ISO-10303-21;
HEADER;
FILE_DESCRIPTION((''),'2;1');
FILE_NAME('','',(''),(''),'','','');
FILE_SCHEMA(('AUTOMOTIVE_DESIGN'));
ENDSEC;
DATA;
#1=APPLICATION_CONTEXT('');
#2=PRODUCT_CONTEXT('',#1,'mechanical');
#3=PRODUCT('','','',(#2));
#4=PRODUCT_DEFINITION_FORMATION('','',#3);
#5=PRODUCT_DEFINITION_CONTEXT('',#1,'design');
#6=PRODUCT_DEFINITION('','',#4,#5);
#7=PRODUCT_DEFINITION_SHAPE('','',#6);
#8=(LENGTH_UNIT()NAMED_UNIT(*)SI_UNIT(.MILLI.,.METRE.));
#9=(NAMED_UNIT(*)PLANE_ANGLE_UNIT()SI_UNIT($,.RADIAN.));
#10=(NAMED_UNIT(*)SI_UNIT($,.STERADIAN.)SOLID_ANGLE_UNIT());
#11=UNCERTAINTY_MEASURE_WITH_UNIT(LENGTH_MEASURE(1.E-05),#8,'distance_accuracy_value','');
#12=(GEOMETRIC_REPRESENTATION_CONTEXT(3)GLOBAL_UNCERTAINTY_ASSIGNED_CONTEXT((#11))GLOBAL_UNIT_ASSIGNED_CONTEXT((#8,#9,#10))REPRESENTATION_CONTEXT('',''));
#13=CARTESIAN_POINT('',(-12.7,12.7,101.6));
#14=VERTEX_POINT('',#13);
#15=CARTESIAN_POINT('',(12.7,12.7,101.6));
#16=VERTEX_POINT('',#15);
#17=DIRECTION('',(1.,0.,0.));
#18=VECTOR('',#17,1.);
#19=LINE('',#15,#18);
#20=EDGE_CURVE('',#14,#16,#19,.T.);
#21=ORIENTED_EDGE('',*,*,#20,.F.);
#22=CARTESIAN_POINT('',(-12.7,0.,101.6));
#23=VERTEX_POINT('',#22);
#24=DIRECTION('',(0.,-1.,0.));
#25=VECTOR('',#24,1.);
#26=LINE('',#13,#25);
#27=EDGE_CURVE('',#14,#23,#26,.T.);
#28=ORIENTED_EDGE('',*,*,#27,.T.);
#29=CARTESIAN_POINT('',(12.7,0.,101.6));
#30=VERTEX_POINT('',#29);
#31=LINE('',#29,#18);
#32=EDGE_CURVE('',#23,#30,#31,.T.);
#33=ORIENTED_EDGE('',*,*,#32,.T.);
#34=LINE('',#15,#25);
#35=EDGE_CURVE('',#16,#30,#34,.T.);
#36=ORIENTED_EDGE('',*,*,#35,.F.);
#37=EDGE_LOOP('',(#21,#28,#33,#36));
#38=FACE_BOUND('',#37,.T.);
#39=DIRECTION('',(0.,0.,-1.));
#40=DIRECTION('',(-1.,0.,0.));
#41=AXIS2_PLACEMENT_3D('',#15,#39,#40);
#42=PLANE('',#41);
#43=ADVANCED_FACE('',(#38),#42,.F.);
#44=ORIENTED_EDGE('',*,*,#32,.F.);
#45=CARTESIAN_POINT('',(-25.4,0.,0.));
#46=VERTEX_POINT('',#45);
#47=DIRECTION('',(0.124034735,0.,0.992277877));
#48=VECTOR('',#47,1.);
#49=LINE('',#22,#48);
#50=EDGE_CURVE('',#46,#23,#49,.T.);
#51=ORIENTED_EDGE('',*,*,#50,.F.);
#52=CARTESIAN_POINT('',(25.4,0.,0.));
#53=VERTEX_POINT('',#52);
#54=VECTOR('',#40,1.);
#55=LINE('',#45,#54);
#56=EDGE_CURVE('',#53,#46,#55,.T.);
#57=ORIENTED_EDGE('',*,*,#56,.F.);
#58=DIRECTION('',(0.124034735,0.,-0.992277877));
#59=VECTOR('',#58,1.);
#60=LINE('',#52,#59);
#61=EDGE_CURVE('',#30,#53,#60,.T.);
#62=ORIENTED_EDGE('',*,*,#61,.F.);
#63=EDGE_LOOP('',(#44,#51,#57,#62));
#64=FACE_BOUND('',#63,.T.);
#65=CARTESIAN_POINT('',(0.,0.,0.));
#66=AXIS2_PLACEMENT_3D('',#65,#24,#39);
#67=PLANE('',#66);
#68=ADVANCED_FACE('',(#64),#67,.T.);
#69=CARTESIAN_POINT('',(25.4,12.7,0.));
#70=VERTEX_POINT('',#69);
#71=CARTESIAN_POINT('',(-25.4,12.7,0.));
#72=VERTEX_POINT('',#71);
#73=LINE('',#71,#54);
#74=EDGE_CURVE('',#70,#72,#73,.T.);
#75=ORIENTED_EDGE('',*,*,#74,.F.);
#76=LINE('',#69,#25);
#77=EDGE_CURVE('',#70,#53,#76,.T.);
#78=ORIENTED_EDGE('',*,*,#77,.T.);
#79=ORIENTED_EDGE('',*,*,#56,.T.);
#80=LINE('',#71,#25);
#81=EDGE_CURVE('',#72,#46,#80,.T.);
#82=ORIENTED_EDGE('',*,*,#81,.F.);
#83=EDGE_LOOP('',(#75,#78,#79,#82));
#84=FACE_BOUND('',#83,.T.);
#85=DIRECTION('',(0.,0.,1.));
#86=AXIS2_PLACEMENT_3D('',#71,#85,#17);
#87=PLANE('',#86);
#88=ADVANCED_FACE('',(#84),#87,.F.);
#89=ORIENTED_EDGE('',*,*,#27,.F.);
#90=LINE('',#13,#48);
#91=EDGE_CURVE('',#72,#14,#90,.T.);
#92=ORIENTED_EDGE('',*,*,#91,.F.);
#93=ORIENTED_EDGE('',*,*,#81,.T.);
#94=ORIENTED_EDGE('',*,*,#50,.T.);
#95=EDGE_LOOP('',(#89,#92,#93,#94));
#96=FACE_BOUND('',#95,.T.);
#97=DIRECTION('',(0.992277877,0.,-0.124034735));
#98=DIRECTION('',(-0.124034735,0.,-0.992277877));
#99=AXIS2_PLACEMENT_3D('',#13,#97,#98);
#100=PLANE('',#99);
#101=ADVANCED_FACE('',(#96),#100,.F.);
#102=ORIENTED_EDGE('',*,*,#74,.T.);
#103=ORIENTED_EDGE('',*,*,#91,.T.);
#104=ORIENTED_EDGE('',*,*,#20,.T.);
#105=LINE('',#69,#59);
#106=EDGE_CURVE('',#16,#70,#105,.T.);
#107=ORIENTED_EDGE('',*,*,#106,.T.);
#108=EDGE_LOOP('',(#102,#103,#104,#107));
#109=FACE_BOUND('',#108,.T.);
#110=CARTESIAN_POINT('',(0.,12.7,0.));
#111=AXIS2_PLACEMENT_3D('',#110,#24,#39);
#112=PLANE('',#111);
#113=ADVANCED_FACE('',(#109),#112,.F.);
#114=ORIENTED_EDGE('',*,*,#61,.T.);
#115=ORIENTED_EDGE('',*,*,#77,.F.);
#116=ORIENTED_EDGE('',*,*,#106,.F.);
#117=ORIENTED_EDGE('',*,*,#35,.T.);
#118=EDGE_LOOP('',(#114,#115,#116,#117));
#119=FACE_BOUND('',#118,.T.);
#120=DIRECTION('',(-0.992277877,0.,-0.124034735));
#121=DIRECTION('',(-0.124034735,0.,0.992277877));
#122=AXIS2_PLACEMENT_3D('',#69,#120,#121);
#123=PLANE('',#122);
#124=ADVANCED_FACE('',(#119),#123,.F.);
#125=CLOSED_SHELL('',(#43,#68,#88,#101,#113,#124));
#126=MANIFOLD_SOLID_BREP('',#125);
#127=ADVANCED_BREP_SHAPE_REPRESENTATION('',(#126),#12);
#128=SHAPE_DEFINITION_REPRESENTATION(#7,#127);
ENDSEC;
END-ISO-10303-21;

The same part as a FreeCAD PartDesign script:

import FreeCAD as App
import Part
import Sketcher

V = App.Vector
Q = App.Units.Quantity

doc = App.newDocument("Part")
body = doc.addObject("PartDesign::Body", "Body")

sketch1 = doc.addObject("Sketcher::SketchObject", "Sketch")
body.addObject(sketch1)
sketch1.AttachmentSupport = (doc.XZ_Plane, [""])
sketch1.MapMode = "FlatFace"
sketch1.addGeometry(Part.LineSegment(V(25.4, 0, 0), V(-25.4, 0, 0)), False)
sketch1.addGeometry(Part.LineSegment(V(-25.4, 0, 0), V(-12.7, 101.6, 0)), False)
sketch1.addGeometry(Part.LineSegment(V(-12.7, 101.6, 0), V(12.7, 101.6, 0)), False)
sketch1.addGeometry(Part.LineSegment(V(12.7, 101.6, 0), V(25.4, 0, 0)), False)
sketch1.addConstraint(Sketcher.Constraint("Coincident", 0, 2, 1, 1))
sketch1.addConstraint(Sketcher.Constraint("Coincident", 1, 2, 2, 1))
sketch1.addConstraint(Sketcher.Constraint("Coincident", 2, 2, 3, 1))
sketch1.addConstraint(Sketcher.Constraint("Coincident", 3, 2, 0, 1))
sketch1.addConstraint(Sketcher.Constraint("Horizontal", 0))
sketch1.addConstraint(Sketcher.Constraint("Horizontal", 2))
sketch1.addConstraint(Sketcher.Constraint("Symmetric", 0, 2, 3, 2, -1, 1))
sketch1.addConstraint(Sketcher.Constraint("Equal", 1, 3))
sketch1.addConstraint(Sketcher.Constraint("DistanceX", 0, 2, 0, 1, Q("2 in")))
sketch1.addConstraint(Sketcher.Constraint("DistanceX", 2, 1, 2, 2, Q("1 in")))
sketch1.addConstraint(Sketcher.Constraint("DistanceY", -1, 1, 1, 2, Q("4 in")))
pad1 = doc.addObject("PartDesign::Pad", "Pad")
body.addObject(pad1)
pad1.Profile = sketch1
pad1.Length = Q("0.5 in")
pad1.Reversed = True

doc.recompute()
